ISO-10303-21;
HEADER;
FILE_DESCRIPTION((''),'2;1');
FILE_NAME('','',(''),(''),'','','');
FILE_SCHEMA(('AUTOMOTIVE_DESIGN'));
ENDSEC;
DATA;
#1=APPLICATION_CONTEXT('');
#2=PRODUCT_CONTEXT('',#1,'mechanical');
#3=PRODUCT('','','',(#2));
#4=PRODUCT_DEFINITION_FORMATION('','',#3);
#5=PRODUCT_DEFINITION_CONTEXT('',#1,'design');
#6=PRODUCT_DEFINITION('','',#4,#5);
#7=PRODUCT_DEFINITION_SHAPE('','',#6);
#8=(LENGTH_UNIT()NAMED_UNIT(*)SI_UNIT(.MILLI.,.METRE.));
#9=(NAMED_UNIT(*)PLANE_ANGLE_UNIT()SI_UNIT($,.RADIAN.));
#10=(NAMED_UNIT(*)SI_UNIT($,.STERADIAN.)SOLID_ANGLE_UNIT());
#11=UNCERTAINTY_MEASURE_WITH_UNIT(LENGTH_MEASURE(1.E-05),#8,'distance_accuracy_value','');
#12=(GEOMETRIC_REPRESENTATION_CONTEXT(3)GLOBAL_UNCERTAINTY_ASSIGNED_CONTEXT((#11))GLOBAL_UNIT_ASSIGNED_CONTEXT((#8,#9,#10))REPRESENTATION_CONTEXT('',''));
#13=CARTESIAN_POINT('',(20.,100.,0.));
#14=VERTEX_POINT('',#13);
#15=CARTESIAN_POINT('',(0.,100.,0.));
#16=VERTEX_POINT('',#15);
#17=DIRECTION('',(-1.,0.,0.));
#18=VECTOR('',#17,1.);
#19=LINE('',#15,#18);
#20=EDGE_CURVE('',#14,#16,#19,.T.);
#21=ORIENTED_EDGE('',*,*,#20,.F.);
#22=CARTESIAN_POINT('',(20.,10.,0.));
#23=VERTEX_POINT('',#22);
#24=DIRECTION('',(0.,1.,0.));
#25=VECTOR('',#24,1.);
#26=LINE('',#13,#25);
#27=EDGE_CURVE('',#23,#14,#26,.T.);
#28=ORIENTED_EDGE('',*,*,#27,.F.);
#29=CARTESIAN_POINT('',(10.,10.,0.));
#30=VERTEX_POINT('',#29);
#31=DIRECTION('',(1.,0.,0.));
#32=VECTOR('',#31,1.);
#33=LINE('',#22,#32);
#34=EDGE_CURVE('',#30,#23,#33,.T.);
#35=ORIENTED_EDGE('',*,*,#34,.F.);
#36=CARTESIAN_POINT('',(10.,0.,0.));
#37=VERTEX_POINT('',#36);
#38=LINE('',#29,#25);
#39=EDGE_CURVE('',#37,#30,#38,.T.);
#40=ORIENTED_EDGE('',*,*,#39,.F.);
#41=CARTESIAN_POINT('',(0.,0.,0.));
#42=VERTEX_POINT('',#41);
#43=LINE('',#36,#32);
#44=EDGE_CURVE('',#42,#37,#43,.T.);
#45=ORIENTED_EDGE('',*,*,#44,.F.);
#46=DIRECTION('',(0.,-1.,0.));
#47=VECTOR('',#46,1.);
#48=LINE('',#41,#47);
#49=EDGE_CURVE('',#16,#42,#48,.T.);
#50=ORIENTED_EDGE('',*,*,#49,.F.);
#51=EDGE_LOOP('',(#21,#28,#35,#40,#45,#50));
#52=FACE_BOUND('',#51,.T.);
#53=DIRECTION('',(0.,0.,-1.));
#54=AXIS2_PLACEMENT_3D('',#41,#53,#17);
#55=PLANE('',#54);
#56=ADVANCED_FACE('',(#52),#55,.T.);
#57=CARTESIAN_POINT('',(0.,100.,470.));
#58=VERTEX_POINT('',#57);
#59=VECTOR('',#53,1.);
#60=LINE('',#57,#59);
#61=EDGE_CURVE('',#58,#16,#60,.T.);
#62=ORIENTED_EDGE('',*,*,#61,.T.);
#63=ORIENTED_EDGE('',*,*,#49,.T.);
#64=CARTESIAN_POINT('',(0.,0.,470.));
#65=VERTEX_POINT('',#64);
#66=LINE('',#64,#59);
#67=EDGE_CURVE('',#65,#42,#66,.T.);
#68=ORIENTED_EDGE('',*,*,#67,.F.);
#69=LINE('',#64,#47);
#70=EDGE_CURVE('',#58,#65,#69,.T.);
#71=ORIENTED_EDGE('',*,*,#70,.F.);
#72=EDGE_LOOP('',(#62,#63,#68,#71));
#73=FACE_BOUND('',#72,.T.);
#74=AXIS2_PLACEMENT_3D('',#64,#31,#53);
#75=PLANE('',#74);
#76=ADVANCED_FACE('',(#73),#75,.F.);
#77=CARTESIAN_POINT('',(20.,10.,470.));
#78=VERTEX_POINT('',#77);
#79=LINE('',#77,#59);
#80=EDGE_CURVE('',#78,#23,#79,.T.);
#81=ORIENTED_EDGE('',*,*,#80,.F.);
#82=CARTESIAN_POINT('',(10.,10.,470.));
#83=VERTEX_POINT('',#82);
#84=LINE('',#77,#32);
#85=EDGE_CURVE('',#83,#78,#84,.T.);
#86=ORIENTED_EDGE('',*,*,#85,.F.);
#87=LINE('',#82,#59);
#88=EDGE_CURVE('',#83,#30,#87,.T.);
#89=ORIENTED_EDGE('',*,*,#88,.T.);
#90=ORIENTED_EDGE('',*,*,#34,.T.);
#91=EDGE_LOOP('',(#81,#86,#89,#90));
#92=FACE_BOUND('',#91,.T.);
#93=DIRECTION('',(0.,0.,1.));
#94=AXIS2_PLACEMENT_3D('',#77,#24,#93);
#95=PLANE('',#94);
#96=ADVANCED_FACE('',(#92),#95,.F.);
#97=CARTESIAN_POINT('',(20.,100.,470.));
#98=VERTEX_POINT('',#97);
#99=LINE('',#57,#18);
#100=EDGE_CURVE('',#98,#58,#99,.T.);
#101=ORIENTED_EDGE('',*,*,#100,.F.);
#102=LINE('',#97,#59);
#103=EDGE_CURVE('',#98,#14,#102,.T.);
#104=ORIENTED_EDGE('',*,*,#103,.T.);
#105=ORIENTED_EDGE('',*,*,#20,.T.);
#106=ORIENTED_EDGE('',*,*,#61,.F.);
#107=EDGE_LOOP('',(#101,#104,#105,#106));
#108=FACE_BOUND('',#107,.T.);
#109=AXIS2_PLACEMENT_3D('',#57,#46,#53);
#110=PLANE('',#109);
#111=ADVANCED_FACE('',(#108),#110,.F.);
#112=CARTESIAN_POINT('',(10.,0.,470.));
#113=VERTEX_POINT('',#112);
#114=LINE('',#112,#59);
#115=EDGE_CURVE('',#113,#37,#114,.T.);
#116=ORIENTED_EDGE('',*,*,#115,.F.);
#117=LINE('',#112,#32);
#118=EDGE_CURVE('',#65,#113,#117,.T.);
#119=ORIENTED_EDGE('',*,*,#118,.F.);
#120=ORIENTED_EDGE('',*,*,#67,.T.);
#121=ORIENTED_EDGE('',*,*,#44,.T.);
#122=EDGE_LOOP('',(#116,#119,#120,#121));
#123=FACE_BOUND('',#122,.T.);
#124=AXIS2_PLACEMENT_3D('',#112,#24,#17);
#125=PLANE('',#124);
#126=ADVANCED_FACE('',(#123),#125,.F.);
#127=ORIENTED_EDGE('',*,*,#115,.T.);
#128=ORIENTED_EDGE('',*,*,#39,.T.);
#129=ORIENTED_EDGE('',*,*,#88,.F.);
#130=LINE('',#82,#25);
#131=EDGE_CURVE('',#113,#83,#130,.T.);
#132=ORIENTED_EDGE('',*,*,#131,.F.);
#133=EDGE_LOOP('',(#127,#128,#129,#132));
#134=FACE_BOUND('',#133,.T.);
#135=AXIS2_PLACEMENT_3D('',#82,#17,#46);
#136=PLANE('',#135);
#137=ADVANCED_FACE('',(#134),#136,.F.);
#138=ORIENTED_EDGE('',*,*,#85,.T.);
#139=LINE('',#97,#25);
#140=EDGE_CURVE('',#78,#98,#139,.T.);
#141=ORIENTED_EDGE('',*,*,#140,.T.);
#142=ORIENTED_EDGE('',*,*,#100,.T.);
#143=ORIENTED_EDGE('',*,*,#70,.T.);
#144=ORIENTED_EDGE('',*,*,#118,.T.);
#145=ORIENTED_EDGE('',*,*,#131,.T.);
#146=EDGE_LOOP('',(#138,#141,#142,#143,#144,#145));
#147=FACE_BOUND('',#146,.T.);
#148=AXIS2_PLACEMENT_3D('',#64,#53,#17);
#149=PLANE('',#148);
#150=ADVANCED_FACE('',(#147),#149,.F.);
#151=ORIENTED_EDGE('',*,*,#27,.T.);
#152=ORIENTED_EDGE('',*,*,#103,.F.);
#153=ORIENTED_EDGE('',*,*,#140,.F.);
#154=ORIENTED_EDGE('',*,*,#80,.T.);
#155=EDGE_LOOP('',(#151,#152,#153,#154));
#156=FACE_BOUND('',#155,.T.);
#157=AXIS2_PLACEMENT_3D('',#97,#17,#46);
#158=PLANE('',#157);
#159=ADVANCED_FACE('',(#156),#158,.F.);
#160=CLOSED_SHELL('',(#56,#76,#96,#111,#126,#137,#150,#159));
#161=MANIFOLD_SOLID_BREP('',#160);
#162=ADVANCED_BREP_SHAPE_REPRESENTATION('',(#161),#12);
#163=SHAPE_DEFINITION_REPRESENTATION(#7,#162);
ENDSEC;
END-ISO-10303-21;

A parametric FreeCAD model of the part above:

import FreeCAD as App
import Part
import Sketcher

V = App.Vector


def add_polygon(sketch, points):
    """Adds a closed chain of lines whose ends are joined by coincident constraints."""
    first, n = sketch.GeometryCount, len(points)
    for a, b in zip(points, points[1:] + points[:1]):
        sketch.addGeometry(Part.LineSegment(App.Vector(*a, 0), App.Vector(*b, 0)), False)
    for i in range(n):
        sketch.addConstraint(Sketcher.Constraint("Coincident", first + i, 2, first + (i + 1) % n, 1))

doc = App.newDocument("Part")
body = doc.addObject("PartDesign::Body", "Body")

# Sketch on XY plane
sketch1 = body.newObject("Sketcher::SketchObject", "Sketch")
sketch1.AttachmentSupport = (doc.getObject("XY_Plane"), [""])
sketch1.MapMode = "FlatFace"
add_polygon(sketch1, [(0, 100), (0, 0), (10, 0), (10, 10), (20, 10), (20, 100)])  # lines 0-5
sketch1.addConstraint([
    Sketcher.Constraint("Vertical", 0),
    Sketcher.Constraint("Horizontal", 1),
    Sketcher.Constraint("Vertical", 2),
    Sketcher.Constraint("Horizontal", 3),
    Sketcher.Constraint("Vertical", 4),
    Sketcher.Constraint("Horizontal", 5),
    Sketcher.Constraint("Coincident", 0, 2, -1, 1),
    Sketcher.Constraint("Equal", 1, 3),
    Sketcher.Constraint("Equal", 3, 2),
    Sketcher.Constraint("DistanceX", 1, 1, 1, 2, 10.0),
    Sketcher.Constraint("DistanceY", 0, 2, 0, 1, 100.0),
])
pad1 = body.newObject("PartDesign::Pad", "Pad")
pad1.Profile = sketch1
pad1.Length = 470

doc.recompute()
